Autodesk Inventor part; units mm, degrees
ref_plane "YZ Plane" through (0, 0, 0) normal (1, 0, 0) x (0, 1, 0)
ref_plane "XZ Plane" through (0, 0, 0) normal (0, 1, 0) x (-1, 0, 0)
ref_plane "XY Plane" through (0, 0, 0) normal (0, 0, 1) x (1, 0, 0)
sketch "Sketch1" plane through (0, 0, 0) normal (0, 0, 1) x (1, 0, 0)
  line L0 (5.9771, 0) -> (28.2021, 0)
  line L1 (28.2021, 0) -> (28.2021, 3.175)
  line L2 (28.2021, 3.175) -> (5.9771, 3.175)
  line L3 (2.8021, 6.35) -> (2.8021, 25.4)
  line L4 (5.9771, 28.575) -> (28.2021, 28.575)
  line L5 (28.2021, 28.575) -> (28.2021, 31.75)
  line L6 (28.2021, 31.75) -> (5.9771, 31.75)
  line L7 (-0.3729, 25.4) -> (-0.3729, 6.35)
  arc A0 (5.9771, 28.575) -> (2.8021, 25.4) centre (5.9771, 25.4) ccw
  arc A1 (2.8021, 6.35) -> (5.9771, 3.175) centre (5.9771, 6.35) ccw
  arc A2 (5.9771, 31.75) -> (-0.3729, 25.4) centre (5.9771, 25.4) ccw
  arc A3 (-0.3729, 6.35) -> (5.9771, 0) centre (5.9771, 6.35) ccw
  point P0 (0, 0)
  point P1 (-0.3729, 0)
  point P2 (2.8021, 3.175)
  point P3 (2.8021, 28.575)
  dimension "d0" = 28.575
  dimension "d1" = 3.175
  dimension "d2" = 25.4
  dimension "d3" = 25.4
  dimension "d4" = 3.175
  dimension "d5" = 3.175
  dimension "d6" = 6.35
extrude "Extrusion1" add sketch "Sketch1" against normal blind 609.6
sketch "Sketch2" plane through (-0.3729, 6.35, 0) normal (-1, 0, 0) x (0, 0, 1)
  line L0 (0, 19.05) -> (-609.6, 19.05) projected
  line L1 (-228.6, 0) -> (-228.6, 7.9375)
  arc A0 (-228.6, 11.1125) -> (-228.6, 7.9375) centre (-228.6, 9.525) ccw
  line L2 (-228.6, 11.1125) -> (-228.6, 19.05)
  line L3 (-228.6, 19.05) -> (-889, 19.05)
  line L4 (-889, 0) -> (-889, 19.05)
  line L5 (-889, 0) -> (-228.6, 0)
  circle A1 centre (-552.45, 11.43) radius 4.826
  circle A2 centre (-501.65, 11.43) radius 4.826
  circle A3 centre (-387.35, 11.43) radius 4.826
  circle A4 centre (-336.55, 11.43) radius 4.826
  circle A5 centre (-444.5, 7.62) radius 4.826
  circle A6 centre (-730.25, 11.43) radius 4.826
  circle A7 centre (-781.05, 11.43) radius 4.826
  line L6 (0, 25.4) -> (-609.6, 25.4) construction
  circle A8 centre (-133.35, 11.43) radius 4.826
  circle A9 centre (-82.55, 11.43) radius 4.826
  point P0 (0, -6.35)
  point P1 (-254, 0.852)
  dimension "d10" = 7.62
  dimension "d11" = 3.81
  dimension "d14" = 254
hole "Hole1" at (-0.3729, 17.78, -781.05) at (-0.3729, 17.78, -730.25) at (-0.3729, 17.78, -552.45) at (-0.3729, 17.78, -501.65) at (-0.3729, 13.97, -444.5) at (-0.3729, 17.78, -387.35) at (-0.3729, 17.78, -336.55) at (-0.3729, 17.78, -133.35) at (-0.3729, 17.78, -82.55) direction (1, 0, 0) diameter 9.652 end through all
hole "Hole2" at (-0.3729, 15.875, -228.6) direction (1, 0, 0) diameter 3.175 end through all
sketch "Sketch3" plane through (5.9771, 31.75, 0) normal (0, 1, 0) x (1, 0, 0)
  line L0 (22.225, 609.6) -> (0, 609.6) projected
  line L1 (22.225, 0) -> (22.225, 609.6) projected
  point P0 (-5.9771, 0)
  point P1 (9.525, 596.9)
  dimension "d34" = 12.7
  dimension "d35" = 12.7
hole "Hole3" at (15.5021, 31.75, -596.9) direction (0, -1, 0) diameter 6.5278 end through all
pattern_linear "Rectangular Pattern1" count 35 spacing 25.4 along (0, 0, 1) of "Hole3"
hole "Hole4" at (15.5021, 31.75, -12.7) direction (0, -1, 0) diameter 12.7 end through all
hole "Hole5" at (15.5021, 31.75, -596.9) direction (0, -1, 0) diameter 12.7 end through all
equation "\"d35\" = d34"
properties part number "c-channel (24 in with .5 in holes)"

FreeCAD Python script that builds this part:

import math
import FreeCAD as App
import Part
import Sketcher
from FreeCAD import Vector
Q = App.Units.Quantity

doc = App.newDocument("Part")
body = doc.addObject("PartDesign::Body", "Body")

sketch1 = body.newObject("Sketcher::SketchObject", "Sketch")
sketch1.AttachmentSupport = (doc.getObject("XY_Plane"), [""])
sketch1.MapMode = "FlatFace"
sketch1.addGeometry(Part.ArcOfCircle(Part.Circle(Vector(5.9771, 6.35, 0), Vector(0, 0, 1), 6.35), math.radians(180), math.radians(270)), False)
sketch1.addGeometry(Part.LineSegment(Vector(5.9771, 0, 0), Vector(28.2021, 0, 0)), False)
sketch1.addGeometry(Part.LineSegment(Vector(28.2021, 0, 0), Vector(28.2021, 3.175, 0)), False)
sketch1.addGeometry(Part.LineSegment(Vector(28.2021, 3.175, 0), Vector(5.9771, 3.175, 0)), False)
sketch1.addGeometry(Part.ArcOfCircle(Part.Circle(Vector(5.9771, 6.35, 0), Vector(0, 0, 1), 3.175), math.radians(180), math.radians(270)), False)
sketch1.addGeometry(Part.LineSegment(Vector(2.8021, 6.35, 0), Vector(2.8021, 25.4, 0)), False)
sketch1.addGeometry(Part.ArcOfCircle(Part.Circle(Vector(5.9771, 25.4, 0), Vector(0, 0, 1), 3.175), math.radians(90), math.radians(180)), False)
sketch1.addGeometry(Part.LineSegment(Vector(5.9771, 28.575, 0), Vector(28.2021, 28.575, 0)), False)
sketch1.addGeometry(Part.LineSegment(Vector(28.2021, 28.575, 0), Vector(28.2021, 31.75, 0)), False)
sketch1.addGeometry(Part.LineSegment(Vector(28.2021, 31.75, 0), Vector(5.9771, 31.75, 0)), False)
sketch1.addGeometry(Part.ArcOfCircle(Part.Circle(Vector(5.9771, 25.4, 0), Vector(0, 0, 1), 6.35), math.radians(90), math.radians(180)), False)
sketch1.addGeometry(Part.LineSegment(Vector(-0.3729, 25.4, 0), Vector(-0.3729, 6.35, 0)), False)
sketch1.addConstraint(Sketcher.Constraint("Tangent", 0, 2, 1, 1))
sketch1.addConstraint(Sketcher.Constraint("Coincident", 1, 2, 2, 1))
sketch1.addConstraint(Sketcher.Constraint("Coincident", 2, 2, 3, 1))
sketch1.addConstraint(Sketcher.Constraint("Tangent", 3, 2, 4, 2))
sketch1.addConstraint(Sketcher.Constraint("Tangent", 4, 1, 5, 1))
sketch1.addConstraint(Sketcher.Constraint("Tangent", 5, 2, 6, 2))
sketch1.addConstraint(Sketcher.Constraint("Tangent", 6, 1, 7, 1))
sketch1.addConstraint(Sketcher.Constraint("Coincident", 7, 2, 8, 1))
sketch1.addConstraint(Sketcher.Constraint("Coincident", 8, 2, 9, 1))
sketch1.addConstraint(Sketcher.Constraint("Tangent", 9, 2, 10, 1))
sketch1.addConstraint(Sketcher.Constraint("Tangent", 10, 2, 11, 1))
sketch1.addConstraint(Sketcher.Constraint("Tangent", 11, 2, 0, 1))
sketch1.addConstraint(Sketcher.Constraint("Horizontal", 1))
sketch1.addConstraint(Sketcher.Constraint("Vertical", 2))
sketch1.addConstraint(Sketcher.Constraint("Horizontal", 3))
sketch1.addConstraint(Sketcher.Constraint("Vertical", 5))
sketch1.addConstraint(Sketcher.Constraint("Horizontal", 7))
sketch1.addConstraint(Sketcher.Constraint("Vertical", 8))
sketch1.addConstraint(Sketcher.Constraint("Horizontal", 9))
sketch1.addConstraint(Sketcher.Constraint("Vertical", 11))
sketch1.addConstraint(Sketcher.Constraint("Coincident", 4, 3, 0, 3))
sketch1.addConstraint(Sketcher.Constraint("Coincident", 10, 3, 6, 3))
sketch1.addConstraint(Sketcher.Constraint("Equal", 4, 6))
sketch1.addConstraint(Sketcher.Constraint("PointOnObject", 0, 2, -1))
sketch1.addConstraint(Sketcher.Constraint("Vertical", 2, 2, 7, 2))
sketch1.addConstraint(Sketcher.Constraint("Radius", 0, Q("0.25 in")))
sketch1.addConstraint(Sketcher.Constraint("DistanceY", -1, 1, 6, 3, Q("1 in")))
sketch1.addConstraint(Sketcher.Constraint("Radius", 4, Q("0.125 in")))
sketch1.addConstraint(Sketcher.Constraint("DistanceX", 5, 2, 7, 2, Q("1 in")))
sketch1.addConstraint(Sketcher.Constraint("DistanceX", -1, 1, 0, 3, Q("5.977 mm")))
pad1 = body.newObject("PartDesign::Pad", "Pad")
pad1.Profile = sketch1
pad1.Length = Q("24 in")
pad1.Reversed = True

sketch2 = body.newObject("Sketcher::SketchObject", "Sketch001")
sketch2.AttachmentSupport = (doc.getObject("YZ_Plane"), [""])
sketch2.MapMode = "FlatFace"
sketch2.AttachmentOffset = App.Placement(Vector(0, 0, -0.3729), App.Rotation())
sketch2.addGeometry(Part.Circle(Vector(17.78, -781.05, 0), Vector(0, 0, 1), 4.826), False)
sketch2.addGeometry(Part.Circle(Vector(17.78, -730.25, 0), Vector(0, 0, 1), 4.826), False)
sketch2.addGeometry(Part.Circle(Vector(17.78, -552.45, 0), Vector(0, 0, 1), 4.826), False)
sketch2.addGeometry(Part.Circle(Vector(17.78, -501.65, 0), Vector(0, 0, 1), 4.826), False)
sketch2.addGeometry(Part.Circle(Vector(13.97, -444.5, 0), Vector(0, 0, 1), 4.826), False)
sketch2.addGeometry(Part.Circle(Vector(17.78, -387.35, 0), Vector(0, 0, 1), 4.826), False)
sketch2.addGeometry(Part.Circle(Vector(17.78, -336.55, 0), Vector(0, 0, 1), 4.826), False)
sketch2.addGeometry(Part.Circle(Vector(17.78, -133.35, 0), Vector(0, 0, 1), 4.826), False)
sketch2.addGeometry(Part.Circle(Vector(17.78, -82.55, 0), Vector(0, 0, 1), 4.826), False)
sketch2.addConstraint(Sketcher.Constraint("Equal", 0, 1))
sketch2.addConstraint(Sketcher.Constraint("Equal", 1, 2))
sketch2.addConstraint(Sketcher.Constraint("Equal", 2, 3))
sketch2.addConstraint(Sketcher.Constraint("Equal", 3, 4))
sketch2.addConstraint(Sketcher.Constraint("Equal", 4, 5))
sketch2.addConstraint(Sketcher.Constraint("Equal", 5, 6))
sketch2.addConstraint(Sketcher.Constraint("Equal", 6, 7))
sketch2.addConstraint(Sketcher.Constraint("Equal", 7, 8))
sketch2.addConstraint(Sketcher.Constraint("Vertical", 0, 3, 1, 3))
sketch2.addConstraint(Sketcher.Constraint("Vertical", 1, 3, 2, 3))
sketch2.addConstraint(Sketcher.Constraint("Vertical", 2, 3, 3, 3))
sketch2.addConstraint(Sketcher.Constraint("Vertical", 3, 3, 5, 3))
sketch2.addConstraint(Sketcher.Constraint("Vertical", 5, 3, 6, 3))
sketch2.addConstraint(Sketcher.Constraint("Vertical", 6, 3, 7, 3))
sketch2.addConstraint(Sketcher.Constraint("Vertical", 7, 3, 8, 3))
sketch2.addConstraint(Sketcher.Constraint("Diameter", 0, Q("0.38 in")))
sketch2.addConstraint(Sketcher.Constraint("DistanceY", 0, 3, 1, 3, Q("2 in")))
sketch2.addConstraint(Sketcher.Constraint("DistanceY", 1, 3, 2, 3, Q("7 in")))
sketch2.addConstraint(Sketcher.Constraint("DistanceY", 2, 3, 3, 3, Q("2 in")))
sketch2.addConstraint(Sketcher.Constraint("DistanceY", 5, 3, 6, 3, Q("2 in")))
sketch2.addConstraint(Sketcher.Constraint("DistanceY", 6, 3, 7, 3, Q("8 in")))
sketch2.addConstraint(Sketcher.Constraint("DistanceY", 7, 3, 8, 3, Q("2 in")))
sketch2.addConstraint(Sketcher.Constraint("DistanceX", -1, 1, 0, 3, Q("0.7 in")))
sketch2.addConstraint(Sketcher.Constraint("DistanceY", 4, 3, -1, 1, Q("17.5 in")))
sketch2.addConstraint(Sketcher.Constraint("DistanceY", 3, 3, 5, 3, Q("4.5 in")))
sketch2.addConstraint(Sketcher.Constraint("DistanceY", 0, 3, -1, 1, Q("30.75 in")))
sketch2.addConstraint(Sketcher.Constraint("DistanceX", -1, 1, 4, 3, Q("0.55 in")))
doc.recompute()
hole = body.newObject("PartDesign::Hole", "Hole")
hole.Profile = sketch2
hole.ThreadType = "None"
hole.Diameter = Q("0.38 in")
hole.DepthType = "ThroughAll"
hole.Reversed = True

sketch3 = body.newObject("Sketcher::SketchObject", "Sketch002")
sketch3.AttachmentSupport = (doc.getObject("YZ_Plane"), [""])
sketch3.MapMode = "FlatFace"
sketch3.AttachmentOffset = App.Placement(Vector(0, 0, -0.3729), App.Rotation())
sketch3.addGeometry(Part.Circle(Vector(15.875, -228.6, 0), Vector(0, 0, 1), 1.5875), False)
sketch3.addConstraint(Sketcher.Constraint("Diameter", 0, Q("0.125 in")))
sketch3.addConstraint(Sketcher.Constraint("DistanceY", 0, 3, -1, 1, Q("9 in")))
sketch3.addConstraint(Sketcher.Constraint("DistanceX", -1, 1, 0, 3, Q("0.625 in")))
doc.recompute()
hole2 = body.newObject("PartDesign::Hole", "Hole001")
hole2.Profile = sketch3
hole2.ThreadType = "None"
hole2.Diameter = Q("0.125 in")
hole2.DepthType = "ThroughAll"
hole2.Reversed = True

sketch4 = body.newObject("Sketcher::SketchObject", "Sketch003")
sketch4.AttachmentSupport = (doc.getObject("XZ_Plane"), [""])
sketch4.MapMode = "FlatFace"
sketch4.AttachmentOffset = App.Placement(Vector(0, 0, -1.25 * 25.4), App.Rotation())
sketch4.addGeometry(Part.Circle(Vector(15.5021, -596.9, 0), Vector(0, 0, 1), 3.2639), False)
sketch4.addConstraint(Sketcher.Constraint("Diameter", 0, Q("0.257 in")))
sketch4.addConstraint(Sketcher.Constraint("DistanceY", 0, 3, -1, 1, Q("23.5 in")))
sketch4.addConstraint(Sketcher.Constraint("DistanceX", -1, 1, 0, 3, Q("15.502 mm")))
doc.recompute()
hole3 = body.newObject("PartDesign::Hole", "Hole002")
hole3.Profile = sketch4
hole3.ThreadType = "None"
hole3.Diameter = Q("0.257 in")
hole3.DepthType = "ThroughAll"
hole3.Reversed = True
doc.recompute()

linearpattern = body.newObject("PartDesign::LinearPattern", "LinearPattern")
linearpattern.Originals = [hole3]
linearpattern.Direction = (doc.getObject("Z_Axis"), [""])
linearpattern.Mode = "offset"
linearpattern.Offset = Q("1 in")
linearpattern.Occurrences = 35
body.Tip = linearpattern

sketch5 = body.newObject("Sketcher::SketchObject", "Sketch004")
sketch5.AttachmentSupport = (doc.getObject("XZ_Plane"), [""])
sketch5.MapMode = "FlatFace"
sketch5.AttachmentOffset = App.Placement(Vector(0, 0, -1.25 * 25.4), App.Rotation())
sketch5.addGeometry(Part.Circle(Vector(15.5021, -12.7, 0), Vector(0, 0, 1), 6.35), False)
sketch5.addConstraint(Sketcher.Constraint("Diameter", 0, Q("0.5 in")))
sketch5.addConstraint(Sketcher.Constraint("DistanceY", 0, 3, -1, 1, Q("0.5 in")))
sketch5.addConstraint(Sketcher.Constraint("DistanceX", -1, 1, 0, 3, Q("15.502 mm")))
doc.recompute()
hole4 = body.newObject("PartDesign::Hole", "Hole003")
hole4.Profile = sketch5
hole4.ThreadType = "None"
hole4.Diameter = Q("0.5 in")
hole4.DepthType = "ThroughAll"
hole4.Reversed = True

sketch6 = body.newObject("Sketcher::SketchObject", "Sketch005")
sketch6.AttachmentSupport = (doc.getObject("XZ_Plane"), [""])
sketch6.MapMode = "FlatFace"
sketch6.AttachmentOffset = App.Placement(Vector(0, 0, -1.25 * 25.4), App.Rotation())
sketch6.addGeometry(Part.Circle(Vector(15.5021, -596.9, 0), Vector(0, 0, 1), 6.35), False)
sketch6.addConstraint(Sketcher.Constraint("Diameter", 0, Q("0.5 in")))
sketch6.addConstraint(Sketcher.Constraint("DistanceY", 0, 3, -1, 1, Q("23.5 in")))
sketch6.addConstraint(Sketcher.Constraint("DistanceX", -1, 1, 0, 3, Q("15.502 mm")))
doc.recompute()
hole5 = body.newObject("PartDesign::Hole", "Hole004")
hole5.Profile = sketch6
hole5.ThreadType = "None"
hole5.Diameter = Q("0.5 in")
hole5.DepthType = "ThroughAll"
hole5.Reversed = True

doc.recompute()
